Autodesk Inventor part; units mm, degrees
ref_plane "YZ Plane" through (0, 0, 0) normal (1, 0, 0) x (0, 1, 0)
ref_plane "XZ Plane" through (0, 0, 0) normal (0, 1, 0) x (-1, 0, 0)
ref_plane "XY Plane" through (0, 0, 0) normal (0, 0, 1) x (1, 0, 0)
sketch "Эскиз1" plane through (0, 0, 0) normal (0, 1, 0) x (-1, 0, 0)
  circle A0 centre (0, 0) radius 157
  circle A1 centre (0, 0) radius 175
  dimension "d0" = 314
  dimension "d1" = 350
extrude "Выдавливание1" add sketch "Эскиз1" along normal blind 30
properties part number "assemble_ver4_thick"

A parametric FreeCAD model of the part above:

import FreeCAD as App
import Part
import Sketcher

V = App.Vector

doc = App.newDocument("Part")
body = doc.addObject("PartDesign::Body", "Body")

# Sketch on XZ plane
sketch1 = doc.addObject("Sketcher::SketchObject", "Sketch")
body.addObject(sketch1)
sketch1.AttachmentSupport = (doc.XZ_Plane, [""])
sketch1.MapMode = "FlatFace"
sketch1.addGeometry([
    Part.Circle(V(0, 0, 0), V(0, 0, 1), 175),
    Part.Circle(V(0, 0, 0), V(0, 0, 1), 157),
], False)
sketch1.addConstraint([
    Sketcher.Constraint("Coincident", 0, 3, -1, 1),
    Sketcher.Constraint("Coincident", 1, 3, -1, 1),
    Sketcher.Constraint("Diameter", 0, 350.0),
    Sketcher.Constraint("Diameter", 1, 314.0),
])
pad1 = doc.addObject("PartDesign::Pad", "Pad")
body.addObject(pad1)
pad1.Profile = sketch1
pad1.Length = 30
pad1.Reversed = True

doc.recompute()
